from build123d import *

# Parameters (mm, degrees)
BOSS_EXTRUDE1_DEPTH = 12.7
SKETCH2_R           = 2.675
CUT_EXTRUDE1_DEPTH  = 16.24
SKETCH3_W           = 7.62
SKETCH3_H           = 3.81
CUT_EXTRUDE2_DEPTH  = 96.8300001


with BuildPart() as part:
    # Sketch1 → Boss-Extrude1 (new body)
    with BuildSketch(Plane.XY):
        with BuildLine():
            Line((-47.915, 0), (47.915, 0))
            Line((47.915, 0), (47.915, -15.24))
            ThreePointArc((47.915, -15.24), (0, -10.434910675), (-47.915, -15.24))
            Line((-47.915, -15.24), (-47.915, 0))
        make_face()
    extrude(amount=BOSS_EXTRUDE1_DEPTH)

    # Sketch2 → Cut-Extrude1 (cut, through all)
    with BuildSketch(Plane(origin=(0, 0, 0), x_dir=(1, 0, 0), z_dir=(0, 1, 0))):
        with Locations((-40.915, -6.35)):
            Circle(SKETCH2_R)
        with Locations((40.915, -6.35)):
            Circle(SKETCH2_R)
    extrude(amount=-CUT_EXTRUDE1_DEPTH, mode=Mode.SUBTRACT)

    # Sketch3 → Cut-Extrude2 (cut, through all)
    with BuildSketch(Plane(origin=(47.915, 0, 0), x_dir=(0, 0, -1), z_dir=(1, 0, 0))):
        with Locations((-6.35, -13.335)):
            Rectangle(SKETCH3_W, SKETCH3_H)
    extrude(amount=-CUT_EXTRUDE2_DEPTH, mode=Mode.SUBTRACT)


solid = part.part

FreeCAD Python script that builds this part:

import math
import FreeCAD as App
import Part
import Sketcher

V = App.Vector
Q = App.Units.Quantity

doc = App.newDocument("Part")
params = doc.addObject("Spreadsheet::Sheet", "Params")
for row, (alias, value) in enumerate([
    ("sketch1_radius", "9.5 in"),
    ("sketch1_height", "0.6 in"),
    ("pad1_length", "0.5 in"),
    ("sketch3_height", "0.3 in"),
    ("sketch3_width", "0.15 in"),
], start=1):
    params.set(f"A{row}", alias)
    params.set(f"B{row}", "=" + value)
    params.setAlias(f"B{row}", alias)

body = doc.addObject("PartDesign::Body", "Body")

# Sketch on XY plane
sketch1 = body.newObject("Sketcher::SketchObject", "Sketch")
sketch1.AttachmentSupport = (doc.getObject("XY_Plane"), [""])
sketch1.MapMode = "FlatFace"
sketch1.addGeometry([
    Part.LineSegment(V(48, 0, 0), V(-48, 0, 0)),
    Part.LineSegment(V(-48, 0, 0), V(-48, -15, 0)),
    Part.ArcOfCircle(Part.Circle(V(0, -252, 0), V(0, 0, 1), 241), math.radians(79), math.radians(101)),
    Part.LineSegment(V(48, -15, 0), V(48, 0, 0)),
], False)
sketch1.addConstraint([
    Sketcher.Constraint("Coincident", 0, 2, 1, 1),
    Sketcher.Constraint("Coincident", 1, 2, 2, 2),
    Sketcher.Constraint("Coincident", 2, 1, 3, 1),
    Sketcher.Constraint("Coincident", 3, 2, 0, 1),
    Sketcher.Constraint("Horizontal", 0),
    Sketcher.Constraint("Vertical", 1),
    Sketcher.Constraint("Vertical", 3),
    Sketcher.Constraint("Symmetric", 0, 2, 3, 2, -1, 1),
    Sketcher.Constraint("PointOnObject", 2, 3, -2),
    Sketcher.Constraint("Radius", 2, Q("9.5 in")),
    Sketcher.Constraint("DistanceY", 1, 2, 1, 1, Q("0.6 in")),
    Sketcher.Constraint("DistanceX", 0, 2, 0, 1, 95.83),
])
sketch1.setExpression("Constraints[9]", "Params.sketch1_radius")
sketch1.setExpression("Constraints[10]", "Params.sketch1_height")
pad1 = body.newObject("PartDesign::Pad", "Pad")
pad1.Profile = sketch1
pad1.setExpression("Length", "Params.pad1_length")

# Sketch on XZ plane
sketch2 = body.newObject("Sketcher::SketchObject", "Sketch001")
sketch2.AttachmentSupport = (doc.getObject("XZ_Plane"), [""])
sketch2.MapMode = "FlatFace"
sketch2.addGeometry([
    Part.Circle(V(-40.9, 6.3, 0), V(0, 0, 1), 2.7),
    Part.Circle(V(40.9, 6.3, 0), V(0, 0, 1), 2.7),
], False)
sketch2.addConstraint([
    Sketcher.Constraint("Equal", 0, 1),
    Sketcher.Constraint("Symmetric", 0, 3, 1, 3, -2),
    Sketcher.Constraint("Diameter", 0, 5.35),
    Sketcher.Constraint("DistanceY", -1, 1, 0, 3, Q("0.25 in")),
    Sketcher.Constraint("DistanceX", 0, 3, -1, 1, 40.915),
])
pocket1 = body.newObject("PartDesign::Pocket", "Pocket")
pocket1.Profile = sketch2
pocket1.Type = "ThroughAll"
pocket1.Reversed = True

# Sketch on YZ plane
sketch3 = body.newObject("Sketcher::SketchObject", "Sketch002")
sketch3.AttachmentSupport = (doc.getObject("YZ_Plane"), [""])
sketch3.MapMode = "FlatFace"
sketch3.AttachmentOffset = App.Placement(V(0, 0, 47.915), App.Rotation())
sketch3.addGeometry([
    Part.LineSegment(V(-11.4, 10.2, 0), V(-15.2, 10.2, 0)),
    Part.LineSegment(V(-15.2, 10.2, 0), V(-15.2, 2.5, 0)),
    Part.LineSegment(V(-15.2, 2.5, 0), V(-11.4, 2.5, 0)),
    Part.LineSegment(V(-11.4, 2.5, 0), V(-11.4, 10.2, 0)),
], False)
sketch3.addConstraint([
    Sketcher.Constraint("Coincident", 0, 2, 1, 1),
    Sketcher.Constraint("Coincident", 1, 2, 2, 1),
    Sketcher.Constraint("Coincident", 2, 2, 3, 1),
    Sketcher.Constraint("Coincident", 3, 2, 0, 1),
    Sketcher.Constraint("Horizontal", 0),
    Sketcher.Constraint("Vertical", 1),
    Sketcher.Constraint("Horizontal", 2),
    Sketcher.Constraint("Vertical", 3),
    Sketcher.Constraint("DistanceY", 1, 2, 1, 1, Q("0.3 in")),
    Sketcher.Constraint("DistanceX", 0, 2, 0, 1, Q("0.15 in")),
    Sketcher.Constraint("DistanceX", 0, 2, -1, 1, Q("0.6 in")),
    Sketcher.Constraint("DistanceY", -1, 1, 0, 2, Q("0.4 in")),
])
sketch3.setExpression("Constraints[8]", "Params.sketch3_height")
sketch3.setExpression("Constraints[9]", "Params.sketch3_width")
pocket2 = body.newObject("PartDesign::Pocket", "Pocket001")
pocket2.Profile = sketch3
pocket2.Type = "ThroughAll"

doc.recompute()
